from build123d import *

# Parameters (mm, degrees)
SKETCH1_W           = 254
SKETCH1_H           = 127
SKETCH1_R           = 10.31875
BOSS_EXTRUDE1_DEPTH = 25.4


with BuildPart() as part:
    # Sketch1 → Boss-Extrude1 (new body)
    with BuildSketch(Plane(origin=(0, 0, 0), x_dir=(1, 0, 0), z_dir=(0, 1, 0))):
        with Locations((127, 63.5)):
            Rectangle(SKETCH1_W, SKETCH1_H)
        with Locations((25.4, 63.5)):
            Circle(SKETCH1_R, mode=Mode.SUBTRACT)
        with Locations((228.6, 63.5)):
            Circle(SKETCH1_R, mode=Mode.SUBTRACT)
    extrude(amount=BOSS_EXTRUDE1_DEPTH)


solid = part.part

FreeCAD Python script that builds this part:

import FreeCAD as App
import Part
import Sketcher

V = App.Vector
Q = App.Units.Quantity


def add_polygon(sketch, points):
    """Adds a closed chain of lines whose ends are joined by coincident constraints."""
    first, n = sketch.GeometryCount, len(points)
    for a, b in zip(points, points[1:] + points[:1]):
        sketch.addGeometry(Part.LineSegment(App.Vector(*a, 0), App.Vector(*b, 0)), False)
    for i in range(n):
        sketch.addConstraint(Sketcher.Constraint("Coincident", first + i, 2, first + (i + 1) % n, 1))

doc = App.newDocument("Part")
body = doc.addObject("PartDesign::Body", "Body")

# Sketch on XZ plane
sketch1 = doc.addObject("Sketcher::SketchObject", "Sketch")
body.addObject(sketch1)
sketch1.AttachmentSupport = (doc.XZ_Plane, [""])
sketch1.MapMode = "FlatFace"
add_polygon(sketch1, [(0, -127), (0, 0), (254, 0), (254, -127)])  # lines 0-3
sketch1.addGeometry(Part.Circle(V(25, -64, 0), V(0, 0, 1), 10), False)  # 4
sketch1.addGeometry(Part.Circle(V(229, -64, 0), V(0, 0, 1), 10), False)  # 5
sketch1.addConstraint(Sketcher.Constraint("Vertical", 0))
sketch1.addConstraint(Sketcher.Constraint("Horizontal", 1))
sketch1.addConstraint(Sketcher.Constraint("Vertical", 2))
sketch1.addConstraint(Sketcher.Constraint("Horizontal", 3))
sketch1.addConstraint(Sketcher.Constraint("Coincident", 0, 2, -1, 1))
sketch1.addConstraint(Sketcher.Constraint("Equal", 4, 5))
sketch1.addConstraint(Sketcher.Constraint("Horizontal", 4, 3, 5, 3))
sketch1.addConstraint(Sketcher.Constraint("DistanceX", 1, 1, 1, 2, Q("10 in")))
sketch1.addConstraint(Sketcher.Constraint("DistanceY", 0, 1, 0, 2, Q("5 in")))
sketch1.addConstraint(Sketcher.Constraint("Diameter", 4, Q("0.8125 in")))
sketch1.addConstraint(Sketcher.Constraint("DistanceX", -1, 1, 4, 3, Q("1 in")))
sketch1.addConstraint(Sketcher.Constraint("DistanceX", -1, 1, 5, 3, Q("9 in")))
sketch1.addConstraint(Sketcher.Constraint("DistanceY", 4, 3, -1, 1, Q("2.5 in")))
pad1 = doc.addObject("PartDesign::Pad", "Pad")
body.addObject(pad1)
pad1.Profile = sketch1
pad1.Length = Q("1 in")
pad1.Reversed = True

doc.recompute()
